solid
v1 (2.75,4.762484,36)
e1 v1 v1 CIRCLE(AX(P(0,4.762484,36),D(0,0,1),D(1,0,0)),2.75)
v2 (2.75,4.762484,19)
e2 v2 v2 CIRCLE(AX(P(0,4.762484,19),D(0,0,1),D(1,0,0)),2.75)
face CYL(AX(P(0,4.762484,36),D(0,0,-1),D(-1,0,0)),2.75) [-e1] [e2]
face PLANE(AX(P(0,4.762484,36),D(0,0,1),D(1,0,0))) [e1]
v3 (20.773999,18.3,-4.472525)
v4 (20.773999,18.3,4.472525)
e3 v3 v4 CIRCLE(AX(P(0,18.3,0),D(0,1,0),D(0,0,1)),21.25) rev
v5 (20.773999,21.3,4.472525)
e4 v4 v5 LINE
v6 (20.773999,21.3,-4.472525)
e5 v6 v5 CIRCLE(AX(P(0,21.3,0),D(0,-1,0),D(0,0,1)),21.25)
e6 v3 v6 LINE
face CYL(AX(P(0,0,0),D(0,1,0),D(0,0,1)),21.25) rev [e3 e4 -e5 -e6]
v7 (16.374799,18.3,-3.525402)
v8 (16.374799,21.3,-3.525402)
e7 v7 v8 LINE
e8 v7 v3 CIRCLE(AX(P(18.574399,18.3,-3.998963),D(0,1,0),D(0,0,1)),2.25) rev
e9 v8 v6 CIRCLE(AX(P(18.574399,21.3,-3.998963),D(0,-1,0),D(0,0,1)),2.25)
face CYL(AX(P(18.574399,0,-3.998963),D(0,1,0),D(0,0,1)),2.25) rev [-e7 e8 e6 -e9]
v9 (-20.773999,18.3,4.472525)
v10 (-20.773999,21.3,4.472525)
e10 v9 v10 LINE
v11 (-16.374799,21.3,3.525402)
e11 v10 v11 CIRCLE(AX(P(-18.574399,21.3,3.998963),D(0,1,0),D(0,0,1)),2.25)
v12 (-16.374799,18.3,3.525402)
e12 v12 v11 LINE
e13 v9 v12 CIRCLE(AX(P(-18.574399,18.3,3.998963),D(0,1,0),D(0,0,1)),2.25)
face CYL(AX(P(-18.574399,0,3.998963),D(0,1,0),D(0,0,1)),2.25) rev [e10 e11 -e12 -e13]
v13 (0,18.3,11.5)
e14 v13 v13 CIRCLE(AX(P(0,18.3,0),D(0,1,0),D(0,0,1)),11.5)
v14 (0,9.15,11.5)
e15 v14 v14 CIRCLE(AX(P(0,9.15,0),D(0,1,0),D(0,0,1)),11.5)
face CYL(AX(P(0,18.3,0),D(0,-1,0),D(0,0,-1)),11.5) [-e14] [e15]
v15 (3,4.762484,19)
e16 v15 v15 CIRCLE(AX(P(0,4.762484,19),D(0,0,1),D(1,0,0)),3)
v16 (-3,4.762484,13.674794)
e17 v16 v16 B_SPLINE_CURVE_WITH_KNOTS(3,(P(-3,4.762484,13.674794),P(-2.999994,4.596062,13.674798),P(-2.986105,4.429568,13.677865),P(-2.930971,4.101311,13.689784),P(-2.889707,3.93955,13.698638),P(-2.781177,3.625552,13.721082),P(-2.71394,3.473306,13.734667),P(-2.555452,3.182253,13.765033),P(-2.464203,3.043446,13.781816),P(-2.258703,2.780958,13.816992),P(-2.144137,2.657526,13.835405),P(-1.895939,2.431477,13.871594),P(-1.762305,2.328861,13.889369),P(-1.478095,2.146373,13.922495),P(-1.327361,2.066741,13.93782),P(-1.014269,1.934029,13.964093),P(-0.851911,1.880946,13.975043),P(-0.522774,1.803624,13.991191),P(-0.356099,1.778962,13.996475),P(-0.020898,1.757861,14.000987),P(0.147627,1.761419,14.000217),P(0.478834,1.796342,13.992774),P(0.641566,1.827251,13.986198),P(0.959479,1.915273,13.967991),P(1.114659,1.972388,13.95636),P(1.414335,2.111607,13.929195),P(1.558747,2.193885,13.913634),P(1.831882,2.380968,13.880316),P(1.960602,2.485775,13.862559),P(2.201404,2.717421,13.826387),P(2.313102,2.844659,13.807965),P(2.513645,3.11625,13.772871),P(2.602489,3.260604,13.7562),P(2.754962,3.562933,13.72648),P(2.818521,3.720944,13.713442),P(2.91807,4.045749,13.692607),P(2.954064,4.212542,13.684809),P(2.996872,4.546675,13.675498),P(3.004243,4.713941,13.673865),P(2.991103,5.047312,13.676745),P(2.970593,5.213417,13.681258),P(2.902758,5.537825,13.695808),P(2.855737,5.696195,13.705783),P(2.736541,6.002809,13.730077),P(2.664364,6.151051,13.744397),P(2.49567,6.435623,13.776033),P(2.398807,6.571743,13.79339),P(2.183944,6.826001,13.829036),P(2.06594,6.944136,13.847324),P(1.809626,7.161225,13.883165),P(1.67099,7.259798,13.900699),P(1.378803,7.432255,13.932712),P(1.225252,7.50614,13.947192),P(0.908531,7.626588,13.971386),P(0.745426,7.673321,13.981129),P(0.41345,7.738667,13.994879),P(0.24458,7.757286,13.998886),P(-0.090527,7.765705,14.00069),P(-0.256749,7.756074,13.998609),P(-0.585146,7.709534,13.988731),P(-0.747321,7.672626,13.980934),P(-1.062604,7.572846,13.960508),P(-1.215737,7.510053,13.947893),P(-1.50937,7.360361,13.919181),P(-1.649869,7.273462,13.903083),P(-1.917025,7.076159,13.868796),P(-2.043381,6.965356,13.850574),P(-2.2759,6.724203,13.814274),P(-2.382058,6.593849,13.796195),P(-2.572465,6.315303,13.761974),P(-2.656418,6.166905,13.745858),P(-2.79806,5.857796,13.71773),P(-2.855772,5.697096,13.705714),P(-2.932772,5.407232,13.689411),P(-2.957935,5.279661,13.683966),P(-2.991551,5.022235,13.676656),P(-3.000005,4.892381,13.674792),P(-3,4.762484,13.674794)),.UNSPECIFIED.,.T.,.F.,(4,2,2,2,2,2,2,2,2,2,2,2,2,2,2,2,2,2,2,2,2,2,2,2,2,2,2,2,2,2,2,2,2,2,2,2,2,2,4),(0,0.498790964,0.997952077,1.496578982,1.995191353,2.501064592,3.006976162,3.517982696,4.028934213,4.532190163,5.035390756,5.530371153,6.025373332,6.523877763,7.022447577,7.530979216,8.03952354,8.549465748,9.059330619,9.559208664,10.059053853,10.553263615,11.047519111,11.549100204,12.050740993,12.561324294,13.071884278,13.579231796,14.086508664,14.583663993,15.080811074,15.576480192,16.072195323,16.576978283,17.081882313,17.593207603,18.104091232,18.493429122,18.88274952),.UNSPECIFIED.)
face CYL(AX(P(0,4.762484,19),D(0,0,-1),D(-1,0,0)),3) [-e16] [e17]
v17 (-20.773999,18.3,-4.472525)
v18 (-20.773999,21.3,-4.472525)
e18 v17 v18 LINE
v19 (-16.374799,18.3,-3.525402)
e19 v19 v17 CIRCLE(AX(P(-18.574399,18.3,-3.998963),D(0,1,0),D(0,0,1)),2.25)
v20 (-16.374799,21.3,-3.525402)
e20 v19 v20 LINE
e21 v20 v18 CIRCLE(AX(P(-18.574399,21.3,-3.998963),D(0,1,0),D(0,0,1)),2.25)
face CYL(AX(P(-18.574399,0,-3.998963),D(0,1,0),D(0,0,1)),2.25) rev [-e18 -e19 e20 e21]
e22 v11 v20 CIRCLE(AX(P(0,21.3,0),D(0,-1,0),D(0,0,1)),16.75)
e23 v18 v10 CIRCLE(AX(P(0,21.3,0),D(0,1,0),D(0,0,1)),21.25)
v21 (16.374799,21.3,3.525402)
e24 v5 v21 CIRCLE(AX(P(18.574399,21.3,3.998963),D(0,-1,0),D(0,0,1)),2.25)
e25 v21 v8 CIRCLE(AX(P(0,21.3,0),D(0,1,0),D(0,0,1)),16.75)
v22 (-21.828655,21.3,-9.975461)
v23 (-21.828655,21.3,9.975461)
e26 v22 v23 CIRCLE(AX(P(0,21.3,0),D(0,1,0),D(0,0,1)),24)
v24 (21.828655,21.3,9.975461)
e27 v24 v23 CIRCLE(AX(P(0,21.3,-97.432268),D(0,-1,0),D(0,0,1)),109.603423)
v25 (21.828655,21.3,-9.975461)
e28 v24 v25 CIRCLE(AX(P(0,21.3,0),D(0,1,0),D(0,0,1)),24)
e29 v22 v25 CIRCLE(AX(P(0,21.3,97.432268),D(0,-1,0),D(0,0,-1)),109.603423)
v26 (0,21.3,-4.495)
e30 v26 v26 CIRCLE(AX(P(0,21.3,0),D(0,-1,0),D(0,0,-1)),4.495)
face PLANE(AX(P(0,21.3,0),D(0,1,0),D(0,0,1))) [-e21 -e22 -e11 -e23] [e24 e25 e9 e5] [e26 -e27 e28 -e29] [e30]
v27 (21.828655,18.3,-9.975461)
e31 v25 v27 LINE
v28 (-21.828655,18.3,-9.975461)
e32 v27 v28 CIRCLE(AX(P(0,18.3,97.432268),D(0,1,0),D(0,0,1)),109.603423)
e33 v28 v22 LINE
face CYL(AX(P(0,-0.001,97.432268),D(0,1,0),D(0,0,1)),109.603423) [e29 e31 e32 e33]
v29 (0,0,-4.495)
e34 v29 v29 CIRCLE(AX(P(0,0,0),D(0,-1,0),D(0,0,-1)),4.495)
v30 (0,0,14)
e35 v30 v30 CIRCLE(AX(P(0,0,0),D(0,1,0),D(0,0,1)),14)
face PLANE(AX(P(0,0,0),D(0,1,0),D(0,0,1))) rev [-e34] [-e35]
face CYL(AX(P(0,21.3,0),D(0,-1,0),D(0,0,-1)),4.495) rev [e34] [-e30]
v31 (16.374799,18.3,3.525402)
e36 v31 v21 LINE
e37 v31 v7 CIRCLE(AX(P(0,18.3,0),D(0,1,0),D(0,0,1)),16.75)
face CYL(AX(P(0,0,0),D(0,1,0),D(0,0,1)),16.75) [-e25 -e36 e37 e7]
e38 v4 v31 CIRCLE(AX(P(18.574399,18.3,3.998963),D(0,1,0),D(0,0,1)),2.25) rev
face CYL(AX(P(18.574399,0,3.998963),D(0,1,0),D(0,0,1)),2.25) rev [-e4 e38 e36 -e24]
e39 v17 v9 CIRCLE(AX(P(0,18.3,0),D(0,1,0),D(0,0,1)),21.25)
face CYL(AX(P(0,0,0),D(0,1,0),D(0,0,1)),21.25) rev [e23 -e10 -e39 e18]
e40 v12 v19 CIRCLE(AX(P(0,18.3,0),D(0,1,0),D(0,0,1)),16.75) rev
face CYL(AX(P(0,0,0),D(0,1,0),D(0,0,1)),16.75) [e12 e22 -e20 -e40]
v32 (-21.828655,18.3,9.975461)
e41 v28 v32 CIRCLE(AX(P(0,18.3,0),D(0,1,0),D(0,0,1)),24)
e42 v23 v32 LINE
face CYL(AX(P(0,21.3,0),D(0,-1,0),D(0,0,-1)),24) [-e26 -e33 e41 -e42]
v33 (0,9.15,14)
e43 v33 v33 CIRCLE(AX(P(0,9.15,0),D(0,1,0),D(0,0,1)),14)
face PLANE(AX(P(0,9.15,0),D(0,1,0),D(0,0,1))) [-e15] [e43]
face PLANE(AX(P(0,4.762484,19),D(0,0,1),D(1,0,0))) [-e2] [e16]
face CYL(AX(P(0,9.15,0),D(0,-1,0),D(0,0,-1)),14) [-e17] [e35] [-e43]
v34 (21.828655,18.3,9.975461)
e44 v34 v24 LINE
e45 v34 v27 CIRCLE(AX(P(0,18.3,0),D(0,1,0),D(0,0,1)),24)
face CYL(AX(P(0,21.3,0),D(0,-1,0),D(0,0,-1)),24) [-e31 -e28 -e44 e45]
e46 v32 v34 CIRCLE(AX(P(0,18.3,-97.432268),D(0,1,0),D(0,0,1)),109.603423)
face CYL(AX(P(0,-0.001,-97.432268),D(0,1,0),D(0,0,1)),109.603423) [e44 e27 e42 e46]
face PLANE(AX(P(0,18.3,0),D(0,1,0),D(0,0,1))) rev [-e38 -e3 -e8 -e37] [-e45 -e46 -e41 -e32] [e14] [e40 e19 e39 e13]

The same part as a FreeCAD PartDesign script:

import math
import FreeCAD as App
import Part
import Sketcher

doc = App.newDocument("Part")
body = doc.addObject("PartDesign::Body", "Body")

sketch1 = doc.addObject("Sketcher::SketchObject", "Sketch")
body.addObject(sketch1)
sketch1.AttachmentSupport = (doc.XZ_Plane, [""])
sketch1.MapMode = "FlatFace"
sketch1.addGeometry(Part.Circle(App.Vector(0, 0, 0), App.Vector(0, 0, 1), 14), False)
sketch1.addConstraint(Sketcher.Constraint("Coincident", 0, 3, -1, 1))
sketch1.addConstraint(Sketcher.Constraint("Diameter", 0, 28.0))
pad1 = doc.addObject("PartDesign::Pad", "Pad")
body.addObject(pad1)
pad1.Profile = sketch1
pad1.Length = 9.15
pad1.Reversed = True

sketch2 = doc.addObject("Sketcher::SketchObject", "Sketch001")
body.addObject(sketch2)
sketch2.AttachmentSupport = (doc.XZ_Plane, [""])
sketch2.MapMode = "FlatFace"
sketch2.AttachmentOffset = App.Placement(App.Vector(0, 0, -9.15), App.Rotation())
sketch2.addGeometry(Part.Circle(App.Vector(0, 0, 0), App.Vector(0, 0, 1), 11.5), False)
sketch2.addConstraint(Sketcher.Constraint("Coincident", 0, 3, -1, 1))
sketch2.addConstraint(Sketcher.Constraint("Diameter", 0, 23.0))
pad2 = doc.addObject("PartDesign::Pad", "Pad001")
body.addObject(pad2)
pad2.Profile = sketch2
pad2.Length = 9.15
pad2.Reversed = True

sketch3 = doc.addObject("Sketcher::SketchObject", "Sketch002")
body.addObject(sketch3)
sketch3.AttachmentSupport = (doc.XZ_Plane, [""])
sketch3.MapMode = "FlatFace"
sketch3.AttachmentOffset = App.Placement(App.Vector(0, 0, -18.3), App.Rotation())
sketch3.addGeometry(Part.LineSegment(App.Vector(-20.684849, 12.171155, 0), App.Vector(20.684849, 12.171155, 0)), False)
sketch3.addGeometry(Part.ArcOfCircle(Part.Circle(App.Vector(0, 0, 0), App.Vector(0, 0, 1), 24), math.radians(-30.472946), math.radians(30.472946)), False)
sketch3.addGeometry(Part.LineSegment(App.Vector(20.684849, -12.171155, 0), App.Vector(-20.684849, -12.171155, 0)), False)
sketch3.addGeometry(Part.ArcOfCircle(Part.Circle(App.Vector(0, 0, 0), App.Vector(0, 0, 1), 24), math.radians(149.527054), math.radians(210.472946)), False)
sketch3.addConstraint(Sketcher.Constraint("Coincident", 0, 2, 1, 2))
sketch3.addConstraint(Sketcher.Constraint("Coincident", 1, 1, 2, 1))
sketch3.addConstraint(Sketcher.Constraint("Coincident", 2, 2, 3, 2))
sketch3.addConstraint(Sketcher.Constraint("Coincident", 3, 1, 0, 1))
sketch3.addConstraint(Sketcher.Constraint("Horizontal", 0))
sketch3.addConstraint(Sketcher.Constraint("Horizontal", 2))
sketch3.addConstraint(Sketcher.Constraint("Coincident", 1, 3, -1, 1))
sketch3.addConstraint(Sketcher.Constraint("Coincident", 3, 3, -1, 1))
sketch3.addConstraint(Sketcher.Constraint("Equal", 1, 3))
sketch3.addConstraint(Sketcher.Constraint("Vertical", 0, 2, 1, 1))
sketch3.addConstraint(Sketcher.Constraint("Radius", 1, 24.0))
sketch3.addConstraint(Sketcher.Constraint("DistanceX", 0, 1, 0, 2, 41.369698))
pad3 = doc.addObject("PartDesign::Pad", "Pad002")
body.addObject(pad3)
pad3.Profile = sketch3
pad3.Length = 3
pad3.Reversed = True

sketch4 = doc.addObject("Sketcher::SketchObject", "Sketch003")
body.addObject(sketch4)
sketch4.AttachmentSupport = (doc.XZ_Plane, [""])
sketch4.MapMode = "FlatFace"
sketch4.AttachmentOffset = App.Placement(App.Vector(0, 0, -18.299999), App.Rotation())
sketch4.addGeometry(Part.LineSegment(App.Vector(-21.828655, 9.975461, 0), App.Vector(-21.828655, 23.828437, 0)), False)
sketch4.addGeometry(Part.LineSegment(App.Vector(-21.828655, 23.828437, 0), App.Vector(21.828655, 23.828437, 0)), False)
sketch4.addGeometry(Part.LineSegment(App.Vector(21.828655, 23.828437, 0), App.Vector(21.828655, 9.975461, 0)), False)
sketch4.addGeometry(Part.ArcOfCircle(Part.Circle(App.Vector(0, -97.432267, 0), App.Vector(0, 0, 1), 109.603423), math.radians(78.512138), math.radians(101.487862)), False)
sketch4.addGeometry(Part.LineSegment(App.Vector(21.828655, -9.975461, 0), App.Vector(21.828655, -24.795204, 0)), False)
sketch4.addGeometry(Part.LineSegment(App.Vector(21.828655, -24.795204, 0), App.Vector(-21.828655, -24.795204, 0)), False)
sketch4.addGeometry(Part.LineSegment(App.Vector(-21.828655, -24.795204, 0), App.Vector(-21.828655, -9.975461, 0)), False)
sketch4.addGeometry(Part.ArcOfCircle(Part.Circle(App.Vector(0, 97.432267, 0), App.Vector(0, 0, 1), 109.603423), math.radians(-101.487862), math.radians(-78.512138)), False)
sketch4.addConstraint(Sketcher.Constraint("Coincident", 0, 2, 1, 1))
sketch4.addConstraint(Sketcher.Constraint("Coincident", 1, 2, 2, 1))
sketch4.addConstraint(Sketcher.Constraint("Coincident", 2, 2, 3, 1))
sketch4.addConstraint(Sketcher.Constraint("Coincident", 3, 2, 0, 1))
sketch4.addConstraint(Sketcher.Constraint("Coincident", 4, 2, 5, 1))
sketch4.addConstraint(Sketcher.Constraint("Coincident", 5, 2, 6, 1))
sketch4.addConstraint(Sketcher.Constraint("Coincident", 6, 2, 7, 1))
sketch4.addConstraint(Sketcher.Constraint("Coincident", 7, 2, 4, 1))
sketch4.addConstraint(Sketcher.Constraint("Vertical", 0))
sketch4.addConstraint(Sketcher.Constraint("Horizontal", 1))
sketch4.addConstraint(Sketcher.Constraint("Vertical", 2))
sketch4.addConstraint(Sketcher.Constraint("Vertical", 4))
sketch4.addConstraint(Sketcher.Constraint("Horizontal", 5))
sketch4.addConstraint(Sketcher.Constraint("Vertical", 6))
sketch4.addConstraint(Sketcher.Constraint("Equal", 3, 7))
sketch4.addConstraint(Sketcher.Constraint("Symmetric", 3, 3, 7, 3, -1, 1))
sketch4.addConstraint(Sketcher.Constraint("Symmetric", 2, 2, 3, 2, -2))
sketch4.addConstraint(Sketcher.Constraint("Horizontal", 6, 2, 7, 2))
sketch4.addConstraint(Sketcher.Constraint("Vertical", 2, 2, 4, 2))
sketch4.addConstraint(Sketcher.Constraint("Radius", 3, 109.603423))
sketch4.addConstraint(Sketcher.Constraint("DistanceX", 1, 1, 1, 2, 43.65731))
sketch4.addConstraint(Sketcher.Constraint("DistanceY", 0, 1, 0, 2, 13.852976))
sketch4.addConstraint(Sketcher.Constraint("DistanceY", 4, 2, 4, 1, 14.819743))
sketch4.addConstraint(Sketcher.Constraint("DistanceY", -1, 1, 2, 2, 9.975461))
pocket1 = doc.addObject("PartDesign::Pocket", "Pocket")
body.addObject(pocket1)
pocket1.Profile = sketch4
pocket1.Length = 3.000002

sketch5 = doc.addObject("Sketcher::SketchObject", "Sketch004")
body.addObject(sketch5)
sketch5.AttachmentSupport = (doc.XZ_Plane, [""])
sketch5.MapMode = "FlatFace"
sketch5.AttachmentOffset = App.Placement(App.Vector(0, 0, -21.3), App.Rotation())
sketch5.addGeometry(Part.ArcOfCircle(Part.Circle(App.Vector(0, 0, 0), App.Vector(0, 0, 1), 21.25), math.radians(167.85), math.radians(192.15)), False)
sketch5.addGeometry(Part.ArcOfCircle(Part.Circle(App.Vector(-18.574399, 3.998963, 0), App.Vector(0, 0, 1), 2.25), math.radians(-12.15), math.radians(167.85)), False)
sketch5.addGeometry(Part.ArcOfCircle(Part.Circle(App.Vector(0, 0, 0), App.Vector(0, 0, 1), 16.75), math.radians(167.85), math.radians(192.15)), False)
sketch5.addGeometry(Part.ArcOfCircle(Part.Circle(App.Vector(-18.574399, -3.998963, 0), App.Vector(0, 0, 1), 2.25), math.radians(-167.85), math.radians(12.15)), False)
sketch5.addConstraint(Sketcher.Constraint("Tangent", 0, 1, 1, 2))
sketch5.addConstraint(Sketcher.Constraint("Tangent", 1, 1, 2, 1))
sketch5.addConstraint(Sketcher.Constraint("Tangent", 2, 2, 3, 2))
sketch5.addConstraint(Sketcher.Constraint("Tangent", 3, 1, 0, 2))
sketch5.addConstraint(Sketcher.Constraint("Coincident", 0, 3, -1, 1))
sketch5.addConstraint(Sketcher.Constraint("Coincident", 2, 3, -1, 1))
sketch5.addConstraint(Sketcher.Constraint("Vertical", 1, 3, 3, 3))
sketch5.addConstraint(Sketcher.Constraint("Radius", 0, 21.25))
sketch5.addConstraint(Sketcher.Constraint("Radius", 1, 2.25))
sketch5.addConstraint(Sketcher.Constraint("DistanceX", 0, 1, -1, 1, 20.773999))
pocket2 = doc.addObject("PartDesign::Pocket", "Pocket001")
body.addObject(pocket2)
pocket2.Profile = sketch5
pocket2.Type = "ThroughAll"
pocket2.Reversed = True
doc.recompute()

mirrored = doc.addObject("PartDesign::Mirrored", "Mirrored")
body.addObject(mirrored)
mirrored.Originals = [pocket2]
mirrored.MirrorPlane = (doc.YZ_Plane, [""])
body.Tip = mirrored

sketch6 = doc.addObject("Sketcher::SketchObject", "Sketch005")
body.addObject(sketch6)
sketch6.AttachmentSupport = (doc.XY_Plane, [""])
sketch6.MapMode = "FlatFace"
sketch6.addGeometry(Part.Circle(App.Vector(0, 4.762484, 0), App.Vector(0, 0, 1), 3), False)
sketch6.addConstraint(Sketcher.Constraint("PointOnObject", 0, 3, -2))
sketch6.addConstraint(Sketcher.Constraint("Diameter", 0, 6.0))
sketch6.addConstraint(Sketcher.Constraint("DistanceY", -1, 1, 0, 3, 4.762484))
pad4 = doc.addObject("PartDesign::Pad", "Pad003")
body.addObject(pad4)
pad4.Profile = sketch6
pad4.Length = 19

sketch7 = doc.addObject("Sketcher::SketchObject", "Sketch006")
body.addObject(sketch7)
sketch7.AttachmentSupport = (doc.XY_Plane, [""])
sketch7.MapMode = "FlatFace"
sketch7.AttachmentOffset = App.Placement(App.Vector(0, 0, 19), App.Rotation())
sketch7.addGeometry(Part.Circle(App.Vector(0, 4.762484, 0), App.Vector(0, 0, 1), 2.75), False)
sketch7.addConstraint(Sketcher.Constraint("PointOnObject", 0, 3, -2))
sketch7.addConstraint(Sketcher.Constraint("Diameter", 0, 5.5))
sketch7.addConstraint(Sketcher.Constraint("DistanceY", -1, 1, 0, 3, 4.762484))
pad5 = doc.addObject("PartDesign::Pad", "Pad004")
body.addObject(pad5)
pad5.Profile = sketch7
pad5.Length = 17

sketch8 = doc.addObject("Sketcher::SketchObject", "Sketch007")
body.addObject(sketch8)
sketch8.AttachmentSupport = (doc.XZ_Plane, [""])
sketch8.MapMode = "FlatFace"
sketch8.addGeometry(Part.Circle(App.Vector(0, 0, 0), App.Vector(0, 0, 1), 4.495), False)
sketch8.addConstraint(Sketcher.Constraint("Coincident", 0, 3, -1, 1))
sketch8.addConstraint(Sketcher.Constraint("Diameter", 0, 8.99))
pocket3 = doc.addObject("PartDesign::Pocket", "Pocket002")
body.addObject(pocket3)
pocket3.Profile = sketch8
pocket3.Type = "ThroughAll"

doc.recompute()
